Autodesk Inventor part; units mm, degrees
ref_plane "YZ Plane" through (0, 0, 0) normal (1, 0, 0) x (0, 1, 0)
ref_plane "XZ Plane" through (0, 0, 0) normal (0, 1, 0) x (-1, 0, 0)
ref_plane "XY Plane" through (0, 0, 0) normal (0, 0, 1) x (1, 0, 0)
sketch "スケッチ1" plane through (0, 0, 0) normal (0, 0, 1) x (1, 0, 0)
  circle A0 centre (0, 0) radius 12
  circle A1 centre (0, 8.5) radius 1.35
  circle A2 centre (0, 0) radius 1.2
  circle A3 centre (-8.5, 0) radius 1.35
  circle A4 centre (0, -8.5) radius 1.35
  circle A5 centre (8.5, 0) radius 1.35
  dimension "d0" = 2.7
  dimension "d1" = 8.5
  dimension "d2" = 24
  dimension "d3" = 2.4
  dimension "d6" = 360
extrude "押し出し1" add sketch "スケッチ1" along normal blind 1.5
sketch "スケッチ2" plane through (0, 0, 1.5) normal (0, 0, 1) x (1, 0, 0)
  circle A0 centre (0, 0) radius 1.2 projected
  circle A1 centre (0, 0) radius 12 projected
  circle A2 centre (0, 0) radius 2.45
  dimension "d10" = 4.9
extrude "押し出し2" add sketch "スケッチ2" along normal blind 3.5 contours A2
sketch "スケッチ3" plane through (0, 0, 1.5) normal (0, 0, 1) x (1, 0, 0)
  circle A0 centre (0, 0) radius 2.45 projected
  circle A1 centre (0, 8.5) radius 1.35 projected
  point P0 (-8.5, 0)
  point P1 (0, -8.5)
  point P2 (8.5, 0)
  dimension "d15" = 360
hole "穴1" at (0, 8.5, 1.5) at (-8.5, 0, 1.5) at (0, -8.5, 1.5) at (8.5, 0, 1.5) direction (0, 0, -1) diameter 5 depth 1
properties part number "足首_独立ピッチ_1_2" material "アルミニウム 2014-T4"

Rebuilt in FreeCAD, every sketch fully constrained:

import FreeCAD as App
import Part
import Sketcher

doc = App.newDocument("Part")
body = doc.addObject("PartDesign::Body", "Body")

# Sketch on XY plane
sketch1 = body.newObject("Sketcher::SketchObject", "Sketch")
sketch1.AttachmentSupport = (doc.getObject("XY_Plane"), [""])
sketch1.MapMode = "FlatFace"
sketch1.addGeometry(Part.Circle(App.Vector(0, 0, 0), App.Vector(0, 0, 1), 12), False)
sketch1.addGeometry(Part.Circle(App.Vector(0, -8.5, 0), App.Vector(0, 0, 1), 1.4), False)
sketch1.addGeometry(Part.Circle(App.Vector(-8.5, 0, 0), App.Vector(0, 0, 1), 1.4), False)
sketch1.addGeometry(Part.Circle(App.Vector(0, 0, 0), App.Vector(0, 0, 1), 1.2), False)
sketch1.addGeometry(Part.Circle(App.Vector(8.5, 0, 0), App.Vector(0, 0, 1), 1.4), False)
sketch1.addGeometry(Part.Circle(App.Vector(0, 8.5, 0), App.Vector(0, 0, 1), 1.4), False)
sketch1.addConstraint(Sketcher.Constraint("Coincident", 0, 3, -1, 1))
sketch1.addConstraint(Sketcher.Constraint("Coincident", 3, 3, -1, 1))
sketch1.addConstraint(Sketcher.Constraint("Equal", 1, 2))
sketch1.addConstraint(Sketcher.Constraint("Equal", 2, 4))
sketch1.addConstraint(Sketcher.Constraint("Equal", 4, 5))
sketch1.addConstraint(Sketcher.Constraint("Symmetric", 2, 3, 4, 3, -1, 1))
sketch1.addConstraint(Sketcher.Constraint("Symmetric", 1, 3, 5, 3, -1, 1))
sketch1.addConstraint(Sketcher.Constraint("PointOnObject", 1, 3, -2))
sketch1.addConstraint(Sketcher.Constraint("PointOnObject", 2, 3, -1))
sketch1.addConstraint(Sketcher.Constraint("Diameter", 0, 24.0))
sketch1.addConstraint(Sketcher.Constraint("Diameter", 1, 2.7))
sketch1.addConstraint(Sketcher.Constraint("Diameter", 3, 2.4))
sketch1.addConstraint(Sketcher.Constraint("DistanceY", 1, 3, -1, 1, 8.5))
sketch1.addConstraint(Sketcher.Constraint("DistanceX", 2, 3, -1, 1, 8.5))
pad1 = body.newObject("PartDesign::Pad", "Pad")
pad1.Profile = sketch1
pad1.Length = 1.5

# Sketch on XY plane
sketch2 = body.newObject("Sketcher::SketchObject", "Sketch001")
sketch2.AttachmentSupport = (doc.getObject("XY_Plane"), [""])
sketch2.MapMode = "FlatFace"
sketch2.AttachmentOffset = App.Placement(App.Vector(0, 0, 1.5), App.Rotation())
sketch2.addGeometry(Part.Circle(App.Vector(0, 0, 0), App.Vector(0, 0, 1), 2.5), False)
sketch2.addGeometry(Part.Circle(App.Vector(0, 0, 0), App.Vector(0, 0, 1), 1.2), False)
sketch2.addConstraint(Sketcher.Constraint("Coincident", 0, 3, -1, 1))
sketch2.addConstraint(Sketcher.Constraint("Coincident", 1, 3, -1, 1))
sketch2.addConstraint(Sketcher.Constraint("Diameter", 0, 4.9))
sketch2.addConstraint(Sketcher.Constraint("Diameter", 1, 2.4))
pad2 = body.newObject("PartDesign::Pad", "Pad001")
pad2.Profile = sketch2
pad2.Length = 3.5

# Sketch on XY plane
sketch3 = body.newObject("Sketcher::SketchObject", "Sketch002")
sketch3.AttachmentSupport = (doc.getObject("XY_Plane"), [""])
sketch3.MapMode = "FlatFace"
sketch3.AttachmentOffset = App.Placement(App.Vector(0, 0, 1.5), App.Rotation())
sketch3.addGeometry(Part.Circle(App.Vector(0, 8.5, 0), App.Vector(0, 0, 1), 2.5), False)
sketch3.addGeometry(Part.Circle(App.Vector(-8.5, 0, 0), App.Vector(0, 0, 1), 2.5), False)
sketch3.addGeometry(Part.Circle(App.Vector(0, -8.5, 0), App.Vector(0, 0, 1), 2.5), False)
sketch3.addGeometry(Part.Circle(App.Vector(8.5, 0, 0), App.Vector(0, 0, 1), 2.5), False)
sketch3.addConstraint(Sketcher.Constraint("Equal", 0, 1))
sketch3.addConstraint(Sketcher.Constraint("Equal", 1, 2))
sketch3.addConstraint(Sketcher.Constraint("Equal", 2, 3))
sketch3.addConstraint(Sketcher.Constraint("Symmetric", 0, 3, 2, 3, -1, 1))
sketch3.addConstraint(Sketcher.Constraint("Symmetric", 1, 3, 3, 3, -1, 1))
sketch3.addConstraint(Sketcher.Constraint("PointOnObject", 0, 3, -2))
sketch3.addConstraint(Sketcher.Constraint("PointOnObject", 1, 3, -1))
sketch3.addConstraint(Sketcher.Constraint("Diameter", 0, 5.0))
sketch3.addConstraint(Sketcher.Constraint("DistanceY", 2, 3, 0, 3, 17.0))
sketch3.addConstraint(Sketcher.Constraint("DistanceX", 1, 3, 3, 3, 17.0))
doc.recompute()
hole = body.newObject("PartDesign::Hole", "Hole")
hole.Profile = sketch3
hole.ThreadType = "None"
hole.Diameter = 5
hole.DepthType = "Dimension"
hole.Depth = 1
hole.DrillPoint = "Flat"

doc.recompute()
